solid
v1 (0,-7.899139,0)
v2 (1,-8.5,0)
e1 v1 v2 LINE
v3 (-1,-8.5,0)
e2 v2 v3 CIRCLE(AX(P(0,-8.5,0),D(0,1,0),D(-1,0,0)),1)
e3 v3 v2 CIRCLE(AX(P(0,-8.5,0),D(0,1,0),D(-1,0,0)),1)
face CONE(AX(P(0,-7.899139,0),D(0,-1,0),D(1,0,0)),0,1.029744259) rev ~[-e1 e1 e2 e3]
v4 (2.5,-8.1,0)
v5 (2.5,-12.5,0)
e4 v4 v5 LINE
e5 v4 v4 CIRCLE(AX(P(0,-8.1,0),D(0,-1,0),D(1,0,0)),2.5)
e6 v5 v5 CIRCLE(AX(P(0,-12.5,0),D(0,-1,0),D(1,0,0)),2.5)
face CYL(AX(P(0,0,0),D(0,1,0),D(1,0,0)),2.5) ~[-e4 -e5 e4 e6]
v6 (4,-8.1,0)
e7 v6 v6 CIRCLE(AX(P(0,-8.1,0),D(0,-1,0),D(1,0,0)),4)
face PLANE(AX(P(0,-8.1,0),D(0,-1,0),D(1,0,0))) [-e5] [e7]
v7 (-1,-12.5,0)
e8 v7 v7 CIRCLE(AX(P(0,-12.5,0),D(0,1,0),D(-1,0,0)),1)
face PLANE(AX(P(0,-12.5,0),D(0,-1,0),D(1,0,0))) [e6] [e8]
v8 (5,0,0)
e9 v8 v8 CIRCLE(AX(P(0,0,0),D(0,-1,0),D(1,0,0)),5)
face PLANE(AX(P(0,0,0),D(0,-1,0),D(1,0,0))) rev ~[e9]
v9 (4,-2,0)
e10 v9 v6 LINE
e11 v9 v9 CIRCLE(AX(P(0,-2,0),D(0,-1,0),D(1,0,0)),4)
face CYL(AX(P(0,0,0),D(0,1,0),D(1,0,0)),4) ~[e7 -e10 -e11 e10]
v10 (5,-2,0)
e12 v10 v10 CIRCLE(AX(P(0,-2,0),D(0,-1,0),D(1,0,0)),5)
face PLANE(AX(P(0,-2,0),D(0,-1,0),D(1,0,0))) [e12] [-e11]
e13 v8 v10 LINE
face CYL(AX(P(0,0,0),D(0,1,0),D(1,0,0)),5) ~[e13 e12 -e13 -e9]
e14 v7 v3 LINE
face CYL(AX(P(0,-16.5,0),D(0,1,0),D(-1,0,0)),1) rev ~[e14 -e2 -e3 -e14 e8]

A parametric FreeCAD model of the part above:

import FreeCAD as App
import Part
import Sketcher

V = App.Vector
Q = App.Units.Quantity

doc = App.newDocument("Part")
body = doc.addObject("PartDesign::Body", "Body")

sketch1 = doc.addObject("Sketcher::SketchObject", "Sketch")
body.addObject(sketch1)
sketch1.AttachmentSupport = (doc.XZ_Plane, [""])
sketch1.MapMode = "FlatFace"
sketch1.addGeometry(Part.Circle(V(0, 0, 0), V(0, 0, 1), 5), False)
sketch1.addGeometry(Part.Circle(V(0, 0, 0), V(0, 0, 1), 4), False)
sketch1.addConstraint(Sketcher.Constraint("Coincident", 0, 3, -1, 1))
sketch1.addConstraint(Sketcher.Constraint("Coincident", 1, 3, -1, 1))
sketch1.addConstraint(Sketcher.Constraint("Diameter", 0, Q("10 mm")))
sketch1.addConstraint(Sketcher.Constraint("Diameter", 1, Q("8 mm")))
pad1 = doc.addObject("PartDesign::Pad", "Pad")
body.addObject(pad1)
pad1.Profile = sketch1
pad1.Length = 2

sketch2 = doc.addObject("Sketcher::SketchObject", "Sketch001")
body.addObject(sketch2)
sketch2.AttachmentSupport = (doc.XZ_Plane, [""])
sketch2.MapMode = "FlatFace"
sketch2.addGeometry(Part.Circle(V(0, 0, 0), V(0, 0, 1), 4), False)
sketch2.addGeometry(Part.Circle(V(0, 0, 0), V(0, 0, 1), 2.5), False)
sketch2.addConstraint(Sketcher.Constraint("Coincident", 0, 3, -1, 1))
sketch2.addConstraint(Sketcher.Constraint("Coincident", 1, 3, -1, 1))
sketch2.addConstraint(Sketcher.Constraint("Diameter", 0, Q("8 mm")))
sketch2.addConstraint(Sketcher.Constraint("Diameter", 1, Q("5 mm")))
pad2 = doc.addObject("PartDesign::Pad", "Pad001")
body.addObject(pad2)
pad2.Profile = sketch2
pad2.Length = 8.1

sketch3 = doc.addObject("Sketcher::SketchObject", "Sketch002")
body.addObject(sketch3)
sketch3.AttachmentSupport = (doc.XZ_Plane, [""])
sketch3.MapMode = "FlatFace"
sketch3.addGeometry(Part.Circle(V(0, 0, 0), V(0, 0, 1), 2.5), False)
sketch3.addGeometry(Part.Circle(V(0, 0, 0), V(0, 0, 1), 1), False)
sketch3.addConstraint(Sketcher.Constraint("Coincident", 0, 3, -1, 1))
sketch3.addConstraint(Sketcher.Constraint("Coincident", 1, 3, -1, 1))
sketch3.addConstraint(Sketcher.Constraint("Diameter", 0, Q("5 mm")))
sketch3.addConstraint(Sketcher.Constraint("Diameter", 1, Q("2 mm")))
pad3 = doc.addObject("PartDesign::Pad", "Pad002")
body.addObject(pad3)
pad3.Profile = sketch3
pad3.Length = 12.5

sketch4 = doc.addObject("Sketcher::SketchObject", "Sketch003")
body.addObject(sketch4)
sketch4.AttachmentSupport = (doc.XZ_Plane, [""])
sketch4.MapMode = "FlatFace"
sketch4.addGeometry(Part.Circle(V(0, 0, 0), V(0, 0, 1), 1), False)
sketch4.addConstraint(Sketcher.Constraint("Coincident", 0, 3, -1, 1))
sketch4.addConstraint(Sketcher.Constraint("Diameter", 0, Q("2 mm")))
pad4 = doc.addObject("PartDesign::Pad", "Pad003")
body.addObject(pad4)
pad4.Profile = sketch4
pad4.Length = 12.5

sketch5 = doc.addObject("Sketcher::SketchObject", "Sketch004")
body.addObject(sketch5)
sketch5.AttachmentSupport = (doc.XZ_Plane, [""])
sketch5.MapMode = "FlatFace"
sketch5.AttachmentOffset = App.Placement(V(0, 0, 12.5), App.Rotation())
sketch5.addGeometry(Part.Circle(V(0, 0, 0), V(0, 0, 1), 1), False)
sketch5.addConstraint(Sketcher.Constraint("Coincident", 0, 3, -1, 1))
sketch5.addConstraint(Sketcher.Constraint("Diameter", 0, Q("2 mm")))
doc.recompute()
hole = doc.addObject("PartDesign::Hole", "Hole")
body.addObject(hole)
hole.Profile = sketch5
hole.ThreadType = "None"
hole.Diameter = 2
hole.DepthType = "Dimension"
hole.Depth = 4
hole.DrillPoint = "Angled"
hole.DrillPointAngle = 118

doc.recompute()
